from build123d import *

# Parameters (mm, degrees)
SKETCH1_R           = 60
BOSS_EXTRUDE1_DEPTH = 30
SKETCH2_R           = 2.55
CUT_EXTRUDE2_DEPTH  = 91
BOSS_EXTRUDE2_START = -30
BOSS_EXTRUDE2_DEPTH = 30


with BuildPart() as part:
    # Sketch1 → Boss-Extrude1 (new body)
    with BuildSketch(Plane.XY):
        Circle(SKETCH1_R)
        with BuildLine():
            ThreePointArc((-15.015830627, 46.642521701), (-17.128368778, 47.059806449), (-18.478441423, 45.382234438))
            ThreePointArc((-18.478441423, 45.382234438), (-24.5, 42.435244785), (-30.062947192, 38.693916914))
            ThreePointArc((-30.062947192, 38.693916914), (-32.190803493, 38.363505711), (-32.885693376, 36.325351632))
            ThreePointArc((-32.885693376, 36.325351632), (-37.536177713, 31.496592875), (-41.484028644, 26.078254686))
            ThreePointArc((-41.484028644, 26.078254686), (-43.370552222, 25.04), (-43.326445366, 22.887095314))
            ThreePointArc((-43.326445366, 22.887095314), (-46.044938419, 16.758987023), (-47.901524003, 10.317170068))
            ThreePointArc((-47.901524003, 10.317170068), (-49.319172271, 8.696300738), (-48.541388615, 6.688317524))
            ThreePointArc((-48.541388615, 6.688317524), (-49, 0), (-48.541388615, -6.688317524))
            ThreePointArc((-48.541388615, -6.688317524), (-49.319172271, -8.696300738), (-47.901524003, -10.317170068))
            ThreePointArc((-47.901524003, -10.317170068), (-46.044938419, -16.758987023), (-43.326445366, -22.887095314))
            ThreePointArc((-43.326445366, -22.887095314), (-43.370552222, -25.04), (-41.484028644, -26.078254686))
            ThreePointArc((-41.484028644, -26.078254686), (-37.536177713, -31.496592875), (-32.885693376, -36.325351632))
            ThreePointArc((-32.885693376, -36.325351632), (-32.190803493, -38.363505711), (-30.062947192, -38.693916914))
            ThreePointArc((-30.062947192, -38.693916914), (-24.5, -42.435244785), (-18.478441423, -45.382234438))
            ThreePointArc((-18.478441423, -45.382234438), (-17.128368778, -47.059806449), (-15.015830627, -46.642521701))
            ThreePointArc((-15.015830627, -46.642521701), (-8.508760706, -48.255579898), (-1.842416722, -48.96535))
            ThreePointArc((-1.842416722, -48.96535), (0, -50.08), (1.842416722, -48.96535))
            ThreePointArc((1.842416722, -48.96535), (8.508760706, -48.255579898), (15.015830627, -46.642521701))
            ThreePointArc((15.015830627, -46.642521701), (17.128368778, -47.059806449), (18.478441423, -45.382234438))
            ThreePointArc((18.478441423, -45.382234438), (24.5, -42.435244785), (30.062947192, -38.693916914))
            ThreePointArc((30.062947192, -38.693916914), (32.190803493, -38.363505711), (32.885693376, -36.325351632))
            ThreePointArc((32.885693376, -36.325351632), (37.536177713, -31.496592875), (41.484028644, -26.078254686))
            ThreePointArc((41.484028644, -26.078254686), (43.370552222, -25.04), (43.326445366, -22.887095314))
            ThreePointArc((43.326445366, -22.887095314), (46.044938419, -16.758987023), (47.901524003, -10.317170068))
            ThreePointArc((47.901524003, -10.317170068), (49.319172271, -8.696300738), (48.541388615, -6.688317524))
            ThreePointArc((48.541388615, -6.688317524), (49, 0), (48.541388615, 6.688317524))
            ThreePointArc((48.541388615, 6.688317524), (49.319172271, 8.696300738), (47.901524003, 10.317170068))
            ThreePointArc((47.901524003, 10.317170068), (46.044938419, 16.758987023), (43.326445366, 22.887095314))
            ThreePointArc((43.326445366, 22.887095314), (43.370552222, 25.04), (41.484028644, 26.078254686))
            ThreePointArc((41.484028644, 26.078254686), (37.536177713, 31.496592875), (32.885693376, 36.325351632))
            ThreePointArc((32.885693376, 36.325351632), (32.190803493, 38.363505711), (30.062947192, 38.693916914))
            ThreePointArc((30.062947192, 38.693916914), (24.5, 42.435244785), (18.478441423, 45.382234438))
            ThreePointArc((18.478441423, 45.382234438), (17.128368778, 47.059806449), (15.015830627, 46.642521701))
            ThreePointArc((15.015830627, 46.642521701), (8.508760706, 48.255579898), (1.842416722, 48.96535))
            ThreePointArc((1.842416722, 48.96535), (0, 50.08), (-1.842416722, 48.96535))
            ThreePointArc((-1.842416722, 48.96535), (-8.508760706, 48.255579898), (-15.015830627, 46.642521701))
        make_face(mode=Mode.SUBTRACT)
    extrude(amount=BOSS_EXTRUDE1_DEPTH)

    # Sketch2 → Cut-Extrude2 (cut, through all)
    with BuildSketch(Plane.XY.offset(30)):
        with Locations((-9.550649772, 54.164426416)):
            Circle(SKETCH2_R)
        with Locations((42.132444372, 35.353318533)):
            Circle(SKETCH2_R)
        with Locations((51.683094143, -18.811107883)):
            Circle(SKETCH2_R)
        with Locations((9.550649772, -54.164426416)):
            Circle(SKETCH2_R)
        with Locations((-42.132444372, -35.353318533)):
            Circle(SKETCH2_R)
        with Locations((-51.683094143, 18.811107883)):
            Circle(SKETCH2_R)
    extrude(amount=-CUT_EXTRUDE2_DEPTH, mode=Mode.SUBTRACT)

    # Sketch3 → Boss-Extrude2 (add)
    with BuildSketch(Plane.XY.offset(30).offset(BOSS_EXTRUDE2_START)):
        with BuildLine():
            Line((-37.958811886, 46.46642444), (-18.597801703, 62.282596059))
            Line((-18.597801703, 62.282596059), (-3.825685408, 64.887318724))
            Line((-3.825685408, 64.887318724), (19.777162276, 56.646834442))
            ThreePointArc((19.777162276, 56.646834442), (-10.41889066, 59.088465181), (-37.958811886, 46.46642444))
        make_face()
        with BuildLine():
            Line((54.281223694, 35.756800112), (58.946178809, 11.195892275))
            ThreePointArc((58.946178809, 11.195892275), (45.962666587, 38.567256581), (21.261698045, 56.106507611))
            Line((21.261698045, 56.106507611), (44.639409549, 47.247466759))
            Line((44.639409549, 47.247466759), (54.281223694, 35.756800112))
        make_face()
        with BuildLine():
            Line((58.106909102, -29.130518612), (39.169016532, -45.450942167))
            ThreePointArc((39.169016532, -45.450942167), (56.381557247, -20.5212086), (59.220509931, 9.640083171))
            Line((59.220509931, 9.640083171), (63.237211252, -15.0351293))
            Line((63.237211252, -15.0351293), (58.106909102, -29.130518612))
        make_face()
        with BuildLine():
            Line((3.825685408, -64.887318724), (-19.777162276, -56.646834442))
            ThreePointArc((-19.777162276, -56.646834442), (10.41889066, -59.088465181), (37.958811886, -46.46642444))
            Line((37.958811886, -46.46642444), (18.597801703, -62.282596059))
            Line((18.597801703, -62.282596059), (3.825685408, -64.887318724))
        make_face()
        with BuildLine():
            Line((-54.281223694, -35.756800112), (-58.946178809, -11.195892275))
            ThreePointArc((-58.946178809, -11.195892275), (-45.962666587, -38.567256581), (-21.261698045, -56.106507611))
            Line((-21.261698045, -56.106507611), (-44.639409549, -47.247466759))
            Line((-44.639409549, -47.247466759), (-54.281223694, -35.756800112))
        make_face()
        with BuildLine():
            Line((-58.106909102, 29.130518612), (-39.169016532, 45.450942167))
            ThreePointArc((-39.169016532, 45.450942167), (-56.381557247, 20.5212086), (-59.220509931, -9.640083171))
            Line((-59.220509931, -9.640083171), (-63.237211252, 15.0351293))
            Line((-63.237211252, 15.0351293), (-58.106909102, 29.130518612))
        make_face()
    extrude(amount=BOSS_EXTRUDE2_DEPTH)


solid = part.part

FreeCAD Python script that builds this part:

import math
import FreeCAD as App
import Part
import Sketcher

V = App.Vector
Q = App.Units.Quantity

doc = App.newDocument("Part")
body = doc.addObject("PartDesign::Body", "Body")

# Sketch on XY plane
sketch1 = body.newObject("Sketcher::SketchObject", "Sketch")
sketch1.AttachmentSupport = (doc.getObject("XY_Plane"), [""])
sketch1.MapMode = "FlatFace"
sketch1.addGeometry(Part.Circle(V(0, 0, 0), V(0, 0, 1), 60), False)
sketch1.addGeometry(Part.ArcOfCircle(Part.Circle(V(-16.4, 45.1, 0), V(0, 0, 1), 2.1), math.radians(48), math.radians(172)), False)
sketch1.addGeometry(Part.ArcOfCircle(Part.Circle(V(0, 0, 0), V(0, 0, 1), 49), math.radians(92.15), math.radians(107.85)), False)
sketch1.addGeometry(Part.ArcOfCircle(Part.Circle(V(0, 48, 0), V(0, 0, 1), 2.1), math.radians(28), math.radians(152)), False)
sketch1.addGeometry(Part.ArcOfCircle(Part.Circle(V(0, 0, 0), V(0, 0, 1), 49), math.radians(72.15), math.radians(87.85)), False)
sketch1.addGeometry(Part.ArcOfCircle(Part.Circle(V(16.4, 45.1, 0), V(0, 0, 1), 2.1), math.radians(8), math.radians(132)), False)
sketch1.addGeometry(Part.ArcOfCircle(Part.Circle(V(0, 0, 0), V(0, 0, 1), 49), math.radians(52.15), math.radians(67.85)), False)
sketch1.addGeometry(Part.ArcOfCircle(Part.Circle(V(30.9, 36.8, 0), V(0, 0, 1), 2.1), math.radians(-12), math.radians(112)), False)
sketch1.addGeometry(Part.ArcOfCircle(Part.Circle(V(0, 0, 0), V(0, 0, 1), 49), math.radians(32.15), math.radians(47.85)), False)
sketch1.addGeometry(Part.ArcOfCircle(Part.Circle(V(41.6, 24, 0), V(0, 0, 1), 2.1), math.radians(-32), math.radians(92)), False)
sketch1.addGeometry(Part.ArcOfCircle(Part.Circle(V(0, 0, 0), V(0, 0, 1), 49), math.radians(12.15), math.radians(27.85)), False)
sketch1.addGeometry(Part.ArcOfCircle(Part.Circle(V(47.3, 8.3, 0), V(0, 0, 1), 2.1), math.radians(-52), math.radians(72)), False)
sketch1.addGeometry(Part.ArcOfCircle(Part.Circle(V(0, 0, 0), V(0, 0, 1), 49), math.radians(-7.85), math.radians(7.85)), False)
sketch1.addGeometry(Part.ArcOfCircle(Part.Circle(V(47.3, -8.3, 0), V(0, 0, 1), 2.1), math.radians(-72), math.radians(52)), False)
sketch1.addGeometry(Part.ArcOfCircle(Part.Circle(V(0, 0, 0), V(0, 0, 1), 49), math.radians(-27.85), math.radians(-12.15)), False)
sketch1.addGeometry(Part.ArcOfCircle(Part.Circle(V(41.6, -24, 0), V(0, 0, 1), 2.1), math.radians(-92), math.radians(32)), False)
sketch1.addGeometry(Part.ArcOfCircle(Part.Circle(V(0, 0, 0), V(0, 0, 1), 49), math.radians(-47.85), math.radians(-32.15)), False)
sketch1.addGeometry(Part.ArcOfCircle(Part.Circle(V(30.9, -36.8, 0), V(0, 0, 1), 2.1), math.radians(-112), math.radians(12)), False)
sketch1.addGeometry(Part.ArcOfCircle(Part.Circle(V(0, 0, 0), V(0, 0, 1), 49), math.radians(-67.85), math.radians(-52.15)), False)
sketch1.addGeometry(Part.ArcOfCircle(Part.Circle(V(16.4, -45.1, 0), V(0, 0, 1), 2.1), math.radians(-132), math.radians(-8)), False)
sketch1.addGeometry(Part.ArcOfCircle(Part.Circle(V(0, 0, 0), V(0, 0, 1), 49), math.radians(-87.85), math.radians(-72.15)), False)
sketch1.addGeometry(Part.ArcOfCircle(Part.Circle(V(0, -48, 0), V(0, 0, 1), 2.1), math.radians(-152), math.radians(-28)), False)
sketch1.addGeometry(Part.ArcOfCircle(Part.Circle(V(0, 0, 0), V(0, 0, 1), 49), math.radians(-107.85), math.radians(-92.15)), False)
sketch1.addGeometry(Part.ArcOfCircle(Part.Circle(V(-16.4, -45.1, 0), V(0, 0, 1), 2.1), math.radians(-172), math.radians(-48)), False)
sketch1.addGeometry(Part.ArcOfCircle(Part.Circle(V(0, 0, 0), V(0, 0, 1), 49), math.radians(-127.85), math.radians(-112.15)), False)
sketch1.addGeometry(Part.ArcOfCircle(Part.Circle(V(-30.9, -36.8, 0), V(0, 0, 1), 2.1), math.radians(168), math.radians(292)), False)
sketch1.addGeometry(Part.ArcOfCircle(Part.Circle(V(0, 0, 0), V(0, 0, 1), 49), math.radians(-147.85), math.radians(-132.15)), False)
sketch1.addGeometry(Part.ArcOfCircle(Part.Circle(V(-41.6, -24, 0), V(0, 0, 1), 2.1), math.radians(148), math.radians(272)), False)
sketch1.addGeometry(Part.ArcOfCircle(Part.Circle(V(0, 0, 0), V(0, 0, 1), 49), math.radians(-167.85), math.radians(-152.15)), False)
sketch1.addGeometry(Part.ArcOfCircle(Part.Circle(V(-47.3, -8.3, 0), V(0, 0, 1), 2.1), math.radians(128), math.radians(252)), False)
sketch1.addGeometry(Part.ArcOfCircle(Part.Circle(V(0, 0, 0), V(0, 0, 1), 49), math.radians(172.15), math.radians(187.85)), False)
sketch1.addGeometry(Part.ArcOfCircle(Part.Circle(V(-47.3, 8.3, 0), V(0, 0, 1), 2.1), math.radians(108), math.radians(232)), False)
sketch1.addGeometry(Part.ArcOfCircle(Part.Circle(V(0, 0, 0), V(0, 0, 1), 49), math.radians(152.15), math.radians(167.85)), False)
sketch1.addGeometry(Part.ArcOfCircle(Part.Circle(V(-41.6, 24, 0), V(0, 0, 1), 2.1), math.radians(88), math.radians(212)), False)
sketch1.addGeometry(Part.ArcOfCircle(Part.Circle(V(0, 0, 0), V(0, 0, 1), 49), math.radians(132.15), math.radians(147.85)), False)
sketch1.addGeometry(Part.ArcOfCircle(Part.Circle(V(-30.9, 36.8, 0), V(0, 0, 1), 2.1), math.radians(68), math.radians(192)), False)
sketch1.addGeometry(Part.ArcOfCircle(Part.Circle(V(0, 0, 0), V(0, 0, 1), 49), math.radians(112.15), math.radians(127.85)), False)
sketch1.addConstraint(Sketcher.Constraint("Coincident", 1, 1, 2, 2))
sketch1.addConstraint(Sketcher.Constraint("Coincident", 2, 1, 3, 2))
sketch1.addConstraint(Sketcher.Constraint("Coincident", 3, 1, 4, 2))
sketch1.addConstraint(Sketcher.Constraint("Coincident", 4, 1, 5, 2))
sketch1.addConstraint(Sketcher.Constraint("Coincident", 5, 1, 6, 2))
sketch1.addConstraint(Sketcher.Constraint("Coincident", 6, 1, 7, 2))
sketch1.addConstraint(Sketcher.Constraint("Coincident", 7, 1, 8, 2))
sketch1.addConstraint(Sketcher.Constraint("Coincident", 8, 1, 9, 2))
sketch1.addConstraint(Sketcher.Constraint("Coincident", 9, 1, 10, 2))
sketch1.addConstraint(Sketcher.Constraint("Coincident", 10, 1, 11, 2))
sketch1.addConstraint(Sketcher.Constraint("Coincident", 11, 1, 12, 2))
sketch1.addConstraint(Sketcher.Constraint("Coincident", 12, 1, 13, 2))
sketch1.addConstraint(Sketcher.Constraint("Coincident", 13, 1, 14, 2))
sketch1.addConstraint(Sketcher.Constraint("Coincident", 14, 1, 15, 2))
sketch1.addConstraint(Sketcher.Constraint("Coincident", 15, 1, 16, 2))
sketch1.addConstraint(Sketcher.Constraint("Coincident", 16, 1, 17, 2))
sketch1.addConstraint(Sketcher.Constraint("Coincident", 17, 1, 18, 2))
sketch1.addConstraint(Sketcher.Constraint("Coincident", 18, 1, 19, 2))
sketch1.addConstraint(Sketcher.Constraint("Coincident", 19, 1, 20, 2))
sketch1.addConstraint(Sketcher.Constraint("Coincident", 20, 1, 21, 2))
sketch1.addConstraint(Sketcher.Constraint("Coincident", 21, 1, 22, 2))
sketch1.addConstraint(Sketcher.Constraint("Coincident", 22, 1, 23, 2))
sketch1.addConstraint(Sketcher.Constraint("Coincident", 23, 1, 24, 2))
sketch1.addConstraint(Sketcher.Constraint("Coincident", 24, 1, 25, 2))
sketch1.addConstraint(Sketcher.Constraint("Coincident", 25, 1, 26, 2))
sketch1.addConstraint(Sketcher.Constraint("Coincident", 26, 1, 27, 2))
sketch1.addConstraint(Sketcher.Constraint("Coincident", 27, 1, 28, 2))
sketch1.addConstraint(Sketcher.Constraint("Coincident", 28, 1, 29, 2))
sketch1.addConstraint(Sketcher.Constraint("Coincident", 29, 1, 30, 2))
sketch1.addConstraint(Sketcher.Constraint("Coincident", 30, 1, 31, 2))
sketch1.addConstraint(Sketcher.Constraint("Coincident", 31, 1, 32, 2))
sketch1.addConstraint(Sketcher.Constraint("Coincident", 32, 1, 33, 2))
sketch1.addConstraint(Sketcher.Constraint("Coincident", 33, 1, 34, 2))
sketch1.addConstraint(Sketcher.Constraint("Coincident", 34, 1, 35, 2))
sketch1.addConstraint(Sketcher.Constraint("Coincident", 35, 1, 36, 2))
sketch1.addConstraint(Sketcher.Constraint("Coincident", 36, 1, 1, 2))
sketch1.addConstraint(Sketcher.Constraint("Coincident", 0, 3, -1, 1))
sketch1.addConstraint(Sketcher.Constraint("Coincident", 2, 3, -1, 1))
sketch1.addConstraint(Sketcher.Constraint("Coincident", 4, 3, -1, 1))
sketch1.addConstraint(Sketcher.Constraint("Coincident", 6, 3, -1, 1))
sketch1.addConstraint(Sketcher.Constraint("Coincident", 8, 3, -1, 1))
sketch1.addConstraint(Sketcher.Constraint("Coincident", 10, 3, -1, 1))
sketch1.addConstraint(Sketcher.Constraint("Coincident", 12, 3, -1, 1))
sketch1.addConstraint(Sketcher.Constraint("Coincident", 14, 3, -1, 1))
sketch1.addConstraint(Sketcher.Constraint("Coincident", 16, 3, -1, 1))
sketch1.addConstraint(Sketcher.Constraint("Coincident", 18, 3, -1, 1))
sketch1.addConstraint(Sketcher.Constraint("Coincident", 20, 3, -1, 1))
sketch1.addConstraint(Sketcher.Constraint("Coincident", 22, 3, -1, 1))
sketch1.addConstraint(Sketcher.Constraint("Coincident", 24, 3, -1, 1))
sketch1.addConstraint(Sketcher.Constraint("Coincident", 26, 3, -1, 1))
sketch1.addConstraint(Sketcher.Constraint("Coincident", 28, 3, -1, 1))
sketch1.addConstraint(Sketcher.Constraint("Coincident", 30, 3, -1, 1))
sketch1.addConstraint(Sketcher.Constraint("Coincident", 32, 3, -1, 1))
sketch1.addConstraint(Sketcher.Constraint("Coincident", 34, 3, -1, 1))
sketch1.addConstraint(Sketcher.Constraint("Coincident", 36, 3, -1, 1))
sketch1.addConstraint(Sketcher.Constraint("Equal", 1, 3))
sketch1.addConstraint(Sketcher.Constraint("Equal", 2, 4))
sketch1.addConstraint(Sketcher.Constraint("Equal", 3, 5))
sketch1.addConstraint(Sketcher.Constraint("Equal", 4, 6))
sketch1.addConstraint(Sketcher.Constraint("Equal", 5, 7))
sketch1.addConstraint(Sketcher.Constraint("Equal", 6, 8))
sketch1.addConstraint(Sketcher.Constraint("Equal", 7, 9))
sketch1.addConstraint(Sketcher.Constraint("Equal", 8, 10))
sketch1.addConstraint(Sketcher.Constraint("Equal", 9, 11))
sketch1.addConstraint(Sketcher.Constraint("Equal", 10, 12))
sketch1.addConstraint(Sketcher.Constraint("Equal", 11, 13))
sketch1.addConstraint(Sketcher.Constraint("Equal", 12, 14))
sketch1.addConstraint(Sketcher.Constraint("Equal", 13, 15))
sketch1.addConstraint(Sketcher.Constraint("Equal", 14, 16))
sketch1.addConstraint(Sketcher.Constraint("Equal", 15, 17))
sketch1.addConstraint(Sketcher.Constraint("Equal", 16, 18))
sketch1.addConstraint(Sketcher.Constraint("Equal", 17, 19))
sketch1.addConstraint(Sketcher.Constraint("Equal", 18, 20))
sketch1.addConstraint(Sketcher.Constraint("Equal", 19, 21))
sketch1.addConstraint(Sketcher.Constraint("Equal", 20, 22))
sketch1.addConstraint(Sketcher.Constraint("Equal", 21, 23))
sketch1.addConstraint(Sketcher.Constraint("Equal", 22, 24))
sketch1.addConstraint(Sketcher.Constraint("Equal", 23, 25))
sketch1.addConstraint(Sketcher.Constraint("Equal", 24, 26))
sketch1.addConstraint(Sketcher.Constraint("Equal", 25, 27))
sketch1.addConstraint(Sketcher.Constraint("Equal", 26, 28))
sketch1.addConstraint(Sketcher.Constraint("Equal", 27, 29))
sketch1.addConstraint(Sketcher.Constraint("Equal", 28, 30))
sketch1.addConstraint(Sketcher.Constraint("Equal", 29, 31))
sketch1.addConstraint(Sketcher.Constraint("Equal", 30, 32))
sketch1.addConstraint(Sketcher.Constraint("Equal", 31, 33))
sketch1.addConstraint(Sketcher.Constraint("Equal", 32, 34))
sketch1.addConstraint(Sketcher.Constraint("Equal", 33, 35))
sketch1.addConstraint(Sketcher.Constraint("Equal", 34, 36))
sketch1.addConstraint(Sketcher.Constraint("Symmetric", 1, 3, 19, 3, -1, 1))
sketch1.addConstraint(Sketcher.Constraint("Symmetric", 3, 3, 21, 3, -1, 1))
sketch1.addConstraint(Sketcher.Constraint("Symmetric", 5, 3, 23, 3, -1, 1))
sketch1.addConstraint(Sketcher.Constraint("Symmetric", 7, 3, 25, 3, -1, 1))
sketch1.addConstraint(Sketcher.Constraint("Symmetric", 9, 3, 27, 3, -1, 1))
sketch1.addConstraint(Sketcher.Constraint("Symmetric", 11, 3, 29, 3, -1, 1))
sketch1.addConstraint(Sketcher.Constraint("Symmetric", 13, 3, 31, 3, -1, 1))
sketch1.addConstraint(Sketcher.Constraint("Symmetric", 15, 3, 33, 3, -1, 1))
sketch1.addConstraint(Sketcher.Constraint("Symmetric", 17, 3, 35, 3, -1, 1))
sketch1.addConstraint(Sketcher.Constraint("Symmetric", 1, 3, 5, 3, -2))
sketch1.addConstraint(Sketcher.Constraint("Symmetric", 17, 3, 25, 3, -2))
sketch1.addConstraint(Sketcher.Constraint("Symmetric", 15, 3, 27, 3, -2))
sketch1.addConstraint(Sketcher.Constraint("Symmetric", 13, 3, 29, 3, -2))
sketch1.addConstraint(Sketcher.Constraint("PointOnObject", 3, 3, -2))
sketch1.addConstraint(Sketcher.Constraint("Diameter", 0, 120.0))
sketch1.addConstraint(Sketcher.Constraint("Radius", 2, 49.0))
sketch1.addConstraint(Sketcher.Constraint("Radius", 1, 2.08))
sketch1.addConstraint(Sketcher.Constraint("DistanceY", -1, 1, 3, 3, 48.0))
sketch1.addConstraint(Sketcher.Constraint("DistanceY", -1, 1, 9, 3, 24.0))
sketch1.addConstraint(Sketcher.Constraint("DistanceX", -1, 1, 9, 3, 41.569219))
sketch1.addConstraint(Sketcher.Constraint("DistanceX", 1, 1, -1, 1, 15.015831))
sketch1.addConstraint(Sketcher.Constraint("DistanceX", -1, 1, 5, 1, 18.478441))
sketch1.addConstraint(Sketcher.Constraint("DistanceY", -1, 1, 7, 1, 36.325352))
sketch1.addConstraint(Sketcher.Constraint("DistanceY", -1, 1, 10, 1, 10.31717))
sketch1.addConstraint(Sketcher.Constraint("DistanceX", -1, 1, 11, 1, 48.541389))
sketch1.addConstraint(Sketcher.Constraint("DistanceX", -1, 1, 7, 3, 30.853805))
pad1 = body.newObject("PartDesign::Pad", "Pad")
pad1.Profile = sketch1
pad1.Length = 30

# Sketch on XY plane
sketch2 = body.newObject("Sketcher::SketchObject", "Sketch001")
sketch2.AttachmentSupport = (doc.getObject("XY_Plane"), [""])
sketch2.MapMode = "FlatFace"
sketch2.AttachmentOffset = App.Placement(V(0, 0, 30), App.Rotation())
sketch2.addGeometry(Part.Circle(V(-9.6, 54.2, 0), V(0, 0, 1), 2.5), False)
sketch2.addGeometry(Part.Circle(V(42.1, 35.4, 0), V(0, 0, 1), 2.5), False)
sketch2.addGeometry(Part.Circle(V(51.7, -18.8, 0), V(0, 0, 1), 2.5), False)
sketch2.addGeometry(Part.Circle(V(9.6, -54.2, 0), V(0, 0, 1), 2.5), False)
sketch2.addGeometry(Part.Circle(V(-42.1, -35.4, 0), V(0, 0, 1), 2.5), False)
sketch2.addGeometry(Part.Circle(V(-51.7, 18.8, 0), V(0, 0, 1), 2.5), False)
sketch2.addConstraint(Sketcher.Constraint("Equal", 0, 1))
sketch2.addConstraint(Sketcher.Constraint("Equal", 1, 2))
sketch2.addConstraint(Sketcher.Constraint("Equal", 2, 3))
sketch2.addConstraint(Sketcher.Constraint("Equal", 3, 4))
sketch2.addConstraint(Sketcher.Constraint("Equal", 4, 5))
sketch2.addConstraint(Sketcher.Constraint("Symmetric", 0, 3, 3, 3, -1, 1))
sketch2.addConstraint(Sketcher.Constraint("Symmetric", 1, 3, 4, 3, -1, 1))
sketch2.addConstraint(Sketcher.Constraint("Symmetric", 2, 3, 5, 3, -1, 1))
sketch2.addConstraint(Sketcher.Constraint("Diameter", 0, 5.1))
sketch2.addConstraint(Sketcher.Constraint("DistanceX", 0, 3, 3, 3, 19.1013))
sketch2.addConstraint(Sketcher.Constraint("DistanceY", -1, 1, 1, 3, 35.353319))
sketch2.addConstraint(Sketcher.Constraint("DistanceX", 1, 3, 2, 3, 9.55065))
sketch2.addConstraint(Sketcher.Constraint("DistanceY", 3, 3, 2, 3, 35.353319))
sketch2.addConstraint(Sketcher.Constraint("DistanceX", 4, 3, 2, 3, 93.815539))
sketch2.addConstraint(Sketcher.Constraint("DistanceY", 4, 3, 2, 3, 16.542211))
pocket1 = body.newObject("PartDesign::Pocket", "Pocket")
pocket1.Profile = sketch2
pocket1.Type = "ThroughAll"

# Sketch on XY plane
sketch3 = body.newObject("Sketcher::SketchObject", "Sketch002")
sketch3.AttachmentSupport = (doc.getObject("XY_Plane"), [""])
sketch3.MapMode = "FlatFace"
sketch3.addGeometry(Part.LineSegment(V(-19, 62, 0), V(-38, 46, 0)), False)
sketch3.addGeometry(Part.ArcOfCircle(Part.Circle(V(0, 0, 0), V(0, 0, 1), 60), math.radians(71), math.radians(129)), False)
sketch3.addGeometry(Part.LineSegment(V(20, 57, 0), V(-4, 65, 0)), False)
sketch3.addGeometry(Part.LineSegment(V(-4, 65, 0), V(-19, 62, 0)), False)
sketch3.addGeometry(Part.LineSegment(V(59, 11, 0), V(54, 36, 0)), False)
sketch3.addGeometry(Part.LineSegment(V(54, 36, 0), V(45, 47, 0)), False)
sketch3.addGeometry(Part.LineSegment(V(45, 47, 0), V(21, 56, 0)), False)
sketch3.addGeometry(Part.ArcOfCircle(Part.Circle(V(0, 0, 0), V(0, 0, 1), 60), math.radians(11), math.radians(69)), False)
sketch3.addGeometry(Part.LineSegment(V(39, -45, 0), V(58, -29, 0)), False)
sketch3.addGeometry(Part.LineSegment(V(58, -29, 0), V(63, -15, 0)), False)
sketch3.addGeometry(Part.LineSegment(V(63, -15, 0), V(59, 10, 0)), False)
sketch3.addGeometry(Part.ArcOfCircle(Part.Circle(V(0, 0, 0), V(0, 0, 1), 60), math.radians(-49), math.radians(9)), False)
sketch3.addGeometry(Part.LineSegment(V(-20, -57, 0), V(4, -65, 0)), False)
sketch3.addGeometry(Part.LineSegment(V(4, -65, 0), V(19, -62, 0)), False)
sketch3.addGeometry(Part.LineSegment(V(19, -62, 0), V(38, -46, 0)), False)
sketch3.addGeometry(Part.ArcOfCircle(Part.Circle(V(0, 0, 0), V(0, 0, 1), 60), math.radians(-109), math.radians(-51)), False)
sketch3.addGeometry(Part.LineSegment(V(-59, -11, 0), V(-54, -36, 0)), False)
sketch3.addGeometry(Part.LineSegment(V(-54, -36, 0), V(-45, -47, 0)), False)
sketch3.addGeometry(Part.LineSegment(V(-45, -47, 0), V(-21, -56, 0)), False)
sketch3.addGeometry(Part.ArcOfCircle(Part.Circle(V(0, 0, 0), V(0, 0, 1), 60), math.radians(-169), math.radians(-111)), False)
sketch3.addGeometry(Part.LineSegment(V(-39, 45, 0), V(-58, 29, 0)), False)
sketch3.addGeometry(Part.LineSegment(V(-58, 29, 0), V(-63, 15, 0)), False)
sketch3.addGeometry(Part.LineSegment(V(-63, 15, 0), V(-59, -10, 0)), False)
sketch3.addGeometry(Part.ArcOfCircle(Part.Circle(V(0, 0, 0), V(0, 0, 1), 60), math.radians(131), math.radians(189)), False)
sketch3.addConstraint(Sketcher.Constraint("Tangent", 0, 2, 1, 2))
sketch3.addConstraint(Sketcher.Constraint("Tangent", 1, 1, 2, 1))
sketch3.addConstraint(Sketcher.Constraint("Coincident", 2, 2, 3, 1))
sketch3.addConstraint(Sketcher.Constraint("Coincident", 3, 2, 0, 1))
sketch3.addConstraint(Sketcher.Constraint("Coincident", 4, 2, 5, 1))
sketch3.addConstraint(Sketcher.Constraint("Coincident", 5, 2, 6, 1))
sketch3.addConstraint(Sketcher.Constraint("Tangent", 6, 2, 7, 2))
sketch3.addConstraint(Sketcher.Constraint("Tangent", 7, 1, 4, 1))
sketch3.addConstraint(Sketcher.Constraint("Coincident", 8, 2, 9, 1))
sketch3.addConstraint(Sketcher.Constraint("Coincident", 9, 2, 10, 1))
sketch3.addConstraint(Sketcher.Constraint("Tangent", 10, 2, 11, 2))
sketch3.addConstraint(Sketcher.Constraint("Tangent", 11, 1, 8, 1))
sketch3.addConstraint(Sketcher.Constraint("Coincident", 12, 2, 13, 1))
sketch3.addConstraint(Sketcher.Constraint("Coincident", 13, 2, 14, 1))
sketch3.addConstraint(Sketcher.Constraint("Tangent", 14, 2, 15, 2))
sketch3.addConstraint(Sketcher.Constraint("Tangent", 15, 1, 12, 1))
sketch3.addConstraint(Sketcher.Constraint("Coincident", 16, 2, 17, 1))
sketch3.addConstraint(Sketcher.Constraint("Coincident", 17, 2, 18, 1))
sketch3.addConstraint(Sketcher.Constraint("Tangent", 18, 2, 19, 2))
sketch3.addConstraint(Sketcher.Constraint("Tangent", 19, 1, 16, 1))
sketch3.addConstraint(Sketcher.Constraint("Coincident", 20, 2, 21, 1))
sketch3.addConstraint(Sketcher.Constraint("Coincident", 21, 2, 22, 1))
sketch3.addConstraint(Sketcher.Constraint("Tangent", 22, 2, 23, 2))
sketch3.addConstraint(Sketcher.Constraint("Tangent", 23, 1, 20, 1))
sketch3.addConstraint(Sketcher.Constraint("Coincident", 1, 3, -1, 1))
sketch3.addConstraint(Sketcher.Constraint("Coincident", 7, 3, -1, 1))
sketch3.addConstraint(Sketcher.Constraint("Coincident", 11, 3, -1, 1))
sketch3.addConstraint(Sketcher.Constraint("Coincident", 15, 3, -1, 1))
sketch3.addConstraint(Sketcher.Constraint("Coincident", 19, 3, -1, 1))
sketch3.addConstraint(Sketcher.Constraint("Coincident", 23, 3, -1, 1))
sketch3.addConstraint(Sketcher.Constraint("Equal", 1, 7))
sketch3.addConstraint(Sketcher.Constraint("Equal", 7, 11))
sketch3.addConstraint(Sketcher.Constraint("Equal", 11, 15))
sketch3.addConstraint(Sketcher.Constraint("Equal", 15, 19))
sketch3.addConstraint(Sketcher.Constraint("Equal", 19, 23))
sketch3.addConstraint(Sketcher.Constraint("Symmetric", 2, 2, 12, 2, -1, 1))
sketch3.addConstraint(Sketcher.Constraint("Symmetric", 3, 2, 13, 2, -1, 1))
sketch3.addConstraint(Sketcher.Constraint("Symmetric", 4, 2, 16, 2, -1, 1))
sketch3.addConstraint(Sketcher.Constraint("Symmetric", 5, 2, 17, 2, -1, 1))
sketch3.addConstraint(Sketcher.Constraint("Symmetric", 8, 2, 20, 2, -1, 1))
sketch3.addConstraint(Sketcher.Constraint("Symmetric", 9, 2, 21, 2, -1, 1))
sketch3.addConstraint(Sketcher.Constraint("Equal", 0, 2))
sketch3.addConstraint(Sketcher.Constraint("Equal", 2, 4))
sketch3.addConstraint(Sketcher.Constraint("Equal", 3, 5))
sketch3.addConstraint(Sketcher.Constraint("Equal", 4, 6))
sketch3.addConstraint(Sketcher.Constraint("Equal", 6, 8))
sketch3.addConstraint(Sketcher.Constraint("Equal", 5, 9))
sketch3.addConstraint(Sketcher.Constraint("Equal", 8, 10))
sketch3.addConstraint(Sketcher.Constraint("Radius", 1, 60.0))
sketch3.addConstraint(Sketcher.Constraint("Angle", 3, Q("-170 deg")))
sketch3.addConstraint(Sketcher.Constraint("Angle", 5, Q("130 deg")))
sketch3.addConstraint(Sketcher.Constraint("Angle", 9, Q("70 deg")))
sketch3.addConstraint(Sketcher.Constraint("Distance", 0, 25.0))
sketch3.addConstraint(Sketcher.Constraint("Distance", 3, 15.0))
pad2 = body.newObject("PartDesign::Pad", "Pad001")
pad2.Profile = sketch3
pad2.Length = 30

doc.recompute()
